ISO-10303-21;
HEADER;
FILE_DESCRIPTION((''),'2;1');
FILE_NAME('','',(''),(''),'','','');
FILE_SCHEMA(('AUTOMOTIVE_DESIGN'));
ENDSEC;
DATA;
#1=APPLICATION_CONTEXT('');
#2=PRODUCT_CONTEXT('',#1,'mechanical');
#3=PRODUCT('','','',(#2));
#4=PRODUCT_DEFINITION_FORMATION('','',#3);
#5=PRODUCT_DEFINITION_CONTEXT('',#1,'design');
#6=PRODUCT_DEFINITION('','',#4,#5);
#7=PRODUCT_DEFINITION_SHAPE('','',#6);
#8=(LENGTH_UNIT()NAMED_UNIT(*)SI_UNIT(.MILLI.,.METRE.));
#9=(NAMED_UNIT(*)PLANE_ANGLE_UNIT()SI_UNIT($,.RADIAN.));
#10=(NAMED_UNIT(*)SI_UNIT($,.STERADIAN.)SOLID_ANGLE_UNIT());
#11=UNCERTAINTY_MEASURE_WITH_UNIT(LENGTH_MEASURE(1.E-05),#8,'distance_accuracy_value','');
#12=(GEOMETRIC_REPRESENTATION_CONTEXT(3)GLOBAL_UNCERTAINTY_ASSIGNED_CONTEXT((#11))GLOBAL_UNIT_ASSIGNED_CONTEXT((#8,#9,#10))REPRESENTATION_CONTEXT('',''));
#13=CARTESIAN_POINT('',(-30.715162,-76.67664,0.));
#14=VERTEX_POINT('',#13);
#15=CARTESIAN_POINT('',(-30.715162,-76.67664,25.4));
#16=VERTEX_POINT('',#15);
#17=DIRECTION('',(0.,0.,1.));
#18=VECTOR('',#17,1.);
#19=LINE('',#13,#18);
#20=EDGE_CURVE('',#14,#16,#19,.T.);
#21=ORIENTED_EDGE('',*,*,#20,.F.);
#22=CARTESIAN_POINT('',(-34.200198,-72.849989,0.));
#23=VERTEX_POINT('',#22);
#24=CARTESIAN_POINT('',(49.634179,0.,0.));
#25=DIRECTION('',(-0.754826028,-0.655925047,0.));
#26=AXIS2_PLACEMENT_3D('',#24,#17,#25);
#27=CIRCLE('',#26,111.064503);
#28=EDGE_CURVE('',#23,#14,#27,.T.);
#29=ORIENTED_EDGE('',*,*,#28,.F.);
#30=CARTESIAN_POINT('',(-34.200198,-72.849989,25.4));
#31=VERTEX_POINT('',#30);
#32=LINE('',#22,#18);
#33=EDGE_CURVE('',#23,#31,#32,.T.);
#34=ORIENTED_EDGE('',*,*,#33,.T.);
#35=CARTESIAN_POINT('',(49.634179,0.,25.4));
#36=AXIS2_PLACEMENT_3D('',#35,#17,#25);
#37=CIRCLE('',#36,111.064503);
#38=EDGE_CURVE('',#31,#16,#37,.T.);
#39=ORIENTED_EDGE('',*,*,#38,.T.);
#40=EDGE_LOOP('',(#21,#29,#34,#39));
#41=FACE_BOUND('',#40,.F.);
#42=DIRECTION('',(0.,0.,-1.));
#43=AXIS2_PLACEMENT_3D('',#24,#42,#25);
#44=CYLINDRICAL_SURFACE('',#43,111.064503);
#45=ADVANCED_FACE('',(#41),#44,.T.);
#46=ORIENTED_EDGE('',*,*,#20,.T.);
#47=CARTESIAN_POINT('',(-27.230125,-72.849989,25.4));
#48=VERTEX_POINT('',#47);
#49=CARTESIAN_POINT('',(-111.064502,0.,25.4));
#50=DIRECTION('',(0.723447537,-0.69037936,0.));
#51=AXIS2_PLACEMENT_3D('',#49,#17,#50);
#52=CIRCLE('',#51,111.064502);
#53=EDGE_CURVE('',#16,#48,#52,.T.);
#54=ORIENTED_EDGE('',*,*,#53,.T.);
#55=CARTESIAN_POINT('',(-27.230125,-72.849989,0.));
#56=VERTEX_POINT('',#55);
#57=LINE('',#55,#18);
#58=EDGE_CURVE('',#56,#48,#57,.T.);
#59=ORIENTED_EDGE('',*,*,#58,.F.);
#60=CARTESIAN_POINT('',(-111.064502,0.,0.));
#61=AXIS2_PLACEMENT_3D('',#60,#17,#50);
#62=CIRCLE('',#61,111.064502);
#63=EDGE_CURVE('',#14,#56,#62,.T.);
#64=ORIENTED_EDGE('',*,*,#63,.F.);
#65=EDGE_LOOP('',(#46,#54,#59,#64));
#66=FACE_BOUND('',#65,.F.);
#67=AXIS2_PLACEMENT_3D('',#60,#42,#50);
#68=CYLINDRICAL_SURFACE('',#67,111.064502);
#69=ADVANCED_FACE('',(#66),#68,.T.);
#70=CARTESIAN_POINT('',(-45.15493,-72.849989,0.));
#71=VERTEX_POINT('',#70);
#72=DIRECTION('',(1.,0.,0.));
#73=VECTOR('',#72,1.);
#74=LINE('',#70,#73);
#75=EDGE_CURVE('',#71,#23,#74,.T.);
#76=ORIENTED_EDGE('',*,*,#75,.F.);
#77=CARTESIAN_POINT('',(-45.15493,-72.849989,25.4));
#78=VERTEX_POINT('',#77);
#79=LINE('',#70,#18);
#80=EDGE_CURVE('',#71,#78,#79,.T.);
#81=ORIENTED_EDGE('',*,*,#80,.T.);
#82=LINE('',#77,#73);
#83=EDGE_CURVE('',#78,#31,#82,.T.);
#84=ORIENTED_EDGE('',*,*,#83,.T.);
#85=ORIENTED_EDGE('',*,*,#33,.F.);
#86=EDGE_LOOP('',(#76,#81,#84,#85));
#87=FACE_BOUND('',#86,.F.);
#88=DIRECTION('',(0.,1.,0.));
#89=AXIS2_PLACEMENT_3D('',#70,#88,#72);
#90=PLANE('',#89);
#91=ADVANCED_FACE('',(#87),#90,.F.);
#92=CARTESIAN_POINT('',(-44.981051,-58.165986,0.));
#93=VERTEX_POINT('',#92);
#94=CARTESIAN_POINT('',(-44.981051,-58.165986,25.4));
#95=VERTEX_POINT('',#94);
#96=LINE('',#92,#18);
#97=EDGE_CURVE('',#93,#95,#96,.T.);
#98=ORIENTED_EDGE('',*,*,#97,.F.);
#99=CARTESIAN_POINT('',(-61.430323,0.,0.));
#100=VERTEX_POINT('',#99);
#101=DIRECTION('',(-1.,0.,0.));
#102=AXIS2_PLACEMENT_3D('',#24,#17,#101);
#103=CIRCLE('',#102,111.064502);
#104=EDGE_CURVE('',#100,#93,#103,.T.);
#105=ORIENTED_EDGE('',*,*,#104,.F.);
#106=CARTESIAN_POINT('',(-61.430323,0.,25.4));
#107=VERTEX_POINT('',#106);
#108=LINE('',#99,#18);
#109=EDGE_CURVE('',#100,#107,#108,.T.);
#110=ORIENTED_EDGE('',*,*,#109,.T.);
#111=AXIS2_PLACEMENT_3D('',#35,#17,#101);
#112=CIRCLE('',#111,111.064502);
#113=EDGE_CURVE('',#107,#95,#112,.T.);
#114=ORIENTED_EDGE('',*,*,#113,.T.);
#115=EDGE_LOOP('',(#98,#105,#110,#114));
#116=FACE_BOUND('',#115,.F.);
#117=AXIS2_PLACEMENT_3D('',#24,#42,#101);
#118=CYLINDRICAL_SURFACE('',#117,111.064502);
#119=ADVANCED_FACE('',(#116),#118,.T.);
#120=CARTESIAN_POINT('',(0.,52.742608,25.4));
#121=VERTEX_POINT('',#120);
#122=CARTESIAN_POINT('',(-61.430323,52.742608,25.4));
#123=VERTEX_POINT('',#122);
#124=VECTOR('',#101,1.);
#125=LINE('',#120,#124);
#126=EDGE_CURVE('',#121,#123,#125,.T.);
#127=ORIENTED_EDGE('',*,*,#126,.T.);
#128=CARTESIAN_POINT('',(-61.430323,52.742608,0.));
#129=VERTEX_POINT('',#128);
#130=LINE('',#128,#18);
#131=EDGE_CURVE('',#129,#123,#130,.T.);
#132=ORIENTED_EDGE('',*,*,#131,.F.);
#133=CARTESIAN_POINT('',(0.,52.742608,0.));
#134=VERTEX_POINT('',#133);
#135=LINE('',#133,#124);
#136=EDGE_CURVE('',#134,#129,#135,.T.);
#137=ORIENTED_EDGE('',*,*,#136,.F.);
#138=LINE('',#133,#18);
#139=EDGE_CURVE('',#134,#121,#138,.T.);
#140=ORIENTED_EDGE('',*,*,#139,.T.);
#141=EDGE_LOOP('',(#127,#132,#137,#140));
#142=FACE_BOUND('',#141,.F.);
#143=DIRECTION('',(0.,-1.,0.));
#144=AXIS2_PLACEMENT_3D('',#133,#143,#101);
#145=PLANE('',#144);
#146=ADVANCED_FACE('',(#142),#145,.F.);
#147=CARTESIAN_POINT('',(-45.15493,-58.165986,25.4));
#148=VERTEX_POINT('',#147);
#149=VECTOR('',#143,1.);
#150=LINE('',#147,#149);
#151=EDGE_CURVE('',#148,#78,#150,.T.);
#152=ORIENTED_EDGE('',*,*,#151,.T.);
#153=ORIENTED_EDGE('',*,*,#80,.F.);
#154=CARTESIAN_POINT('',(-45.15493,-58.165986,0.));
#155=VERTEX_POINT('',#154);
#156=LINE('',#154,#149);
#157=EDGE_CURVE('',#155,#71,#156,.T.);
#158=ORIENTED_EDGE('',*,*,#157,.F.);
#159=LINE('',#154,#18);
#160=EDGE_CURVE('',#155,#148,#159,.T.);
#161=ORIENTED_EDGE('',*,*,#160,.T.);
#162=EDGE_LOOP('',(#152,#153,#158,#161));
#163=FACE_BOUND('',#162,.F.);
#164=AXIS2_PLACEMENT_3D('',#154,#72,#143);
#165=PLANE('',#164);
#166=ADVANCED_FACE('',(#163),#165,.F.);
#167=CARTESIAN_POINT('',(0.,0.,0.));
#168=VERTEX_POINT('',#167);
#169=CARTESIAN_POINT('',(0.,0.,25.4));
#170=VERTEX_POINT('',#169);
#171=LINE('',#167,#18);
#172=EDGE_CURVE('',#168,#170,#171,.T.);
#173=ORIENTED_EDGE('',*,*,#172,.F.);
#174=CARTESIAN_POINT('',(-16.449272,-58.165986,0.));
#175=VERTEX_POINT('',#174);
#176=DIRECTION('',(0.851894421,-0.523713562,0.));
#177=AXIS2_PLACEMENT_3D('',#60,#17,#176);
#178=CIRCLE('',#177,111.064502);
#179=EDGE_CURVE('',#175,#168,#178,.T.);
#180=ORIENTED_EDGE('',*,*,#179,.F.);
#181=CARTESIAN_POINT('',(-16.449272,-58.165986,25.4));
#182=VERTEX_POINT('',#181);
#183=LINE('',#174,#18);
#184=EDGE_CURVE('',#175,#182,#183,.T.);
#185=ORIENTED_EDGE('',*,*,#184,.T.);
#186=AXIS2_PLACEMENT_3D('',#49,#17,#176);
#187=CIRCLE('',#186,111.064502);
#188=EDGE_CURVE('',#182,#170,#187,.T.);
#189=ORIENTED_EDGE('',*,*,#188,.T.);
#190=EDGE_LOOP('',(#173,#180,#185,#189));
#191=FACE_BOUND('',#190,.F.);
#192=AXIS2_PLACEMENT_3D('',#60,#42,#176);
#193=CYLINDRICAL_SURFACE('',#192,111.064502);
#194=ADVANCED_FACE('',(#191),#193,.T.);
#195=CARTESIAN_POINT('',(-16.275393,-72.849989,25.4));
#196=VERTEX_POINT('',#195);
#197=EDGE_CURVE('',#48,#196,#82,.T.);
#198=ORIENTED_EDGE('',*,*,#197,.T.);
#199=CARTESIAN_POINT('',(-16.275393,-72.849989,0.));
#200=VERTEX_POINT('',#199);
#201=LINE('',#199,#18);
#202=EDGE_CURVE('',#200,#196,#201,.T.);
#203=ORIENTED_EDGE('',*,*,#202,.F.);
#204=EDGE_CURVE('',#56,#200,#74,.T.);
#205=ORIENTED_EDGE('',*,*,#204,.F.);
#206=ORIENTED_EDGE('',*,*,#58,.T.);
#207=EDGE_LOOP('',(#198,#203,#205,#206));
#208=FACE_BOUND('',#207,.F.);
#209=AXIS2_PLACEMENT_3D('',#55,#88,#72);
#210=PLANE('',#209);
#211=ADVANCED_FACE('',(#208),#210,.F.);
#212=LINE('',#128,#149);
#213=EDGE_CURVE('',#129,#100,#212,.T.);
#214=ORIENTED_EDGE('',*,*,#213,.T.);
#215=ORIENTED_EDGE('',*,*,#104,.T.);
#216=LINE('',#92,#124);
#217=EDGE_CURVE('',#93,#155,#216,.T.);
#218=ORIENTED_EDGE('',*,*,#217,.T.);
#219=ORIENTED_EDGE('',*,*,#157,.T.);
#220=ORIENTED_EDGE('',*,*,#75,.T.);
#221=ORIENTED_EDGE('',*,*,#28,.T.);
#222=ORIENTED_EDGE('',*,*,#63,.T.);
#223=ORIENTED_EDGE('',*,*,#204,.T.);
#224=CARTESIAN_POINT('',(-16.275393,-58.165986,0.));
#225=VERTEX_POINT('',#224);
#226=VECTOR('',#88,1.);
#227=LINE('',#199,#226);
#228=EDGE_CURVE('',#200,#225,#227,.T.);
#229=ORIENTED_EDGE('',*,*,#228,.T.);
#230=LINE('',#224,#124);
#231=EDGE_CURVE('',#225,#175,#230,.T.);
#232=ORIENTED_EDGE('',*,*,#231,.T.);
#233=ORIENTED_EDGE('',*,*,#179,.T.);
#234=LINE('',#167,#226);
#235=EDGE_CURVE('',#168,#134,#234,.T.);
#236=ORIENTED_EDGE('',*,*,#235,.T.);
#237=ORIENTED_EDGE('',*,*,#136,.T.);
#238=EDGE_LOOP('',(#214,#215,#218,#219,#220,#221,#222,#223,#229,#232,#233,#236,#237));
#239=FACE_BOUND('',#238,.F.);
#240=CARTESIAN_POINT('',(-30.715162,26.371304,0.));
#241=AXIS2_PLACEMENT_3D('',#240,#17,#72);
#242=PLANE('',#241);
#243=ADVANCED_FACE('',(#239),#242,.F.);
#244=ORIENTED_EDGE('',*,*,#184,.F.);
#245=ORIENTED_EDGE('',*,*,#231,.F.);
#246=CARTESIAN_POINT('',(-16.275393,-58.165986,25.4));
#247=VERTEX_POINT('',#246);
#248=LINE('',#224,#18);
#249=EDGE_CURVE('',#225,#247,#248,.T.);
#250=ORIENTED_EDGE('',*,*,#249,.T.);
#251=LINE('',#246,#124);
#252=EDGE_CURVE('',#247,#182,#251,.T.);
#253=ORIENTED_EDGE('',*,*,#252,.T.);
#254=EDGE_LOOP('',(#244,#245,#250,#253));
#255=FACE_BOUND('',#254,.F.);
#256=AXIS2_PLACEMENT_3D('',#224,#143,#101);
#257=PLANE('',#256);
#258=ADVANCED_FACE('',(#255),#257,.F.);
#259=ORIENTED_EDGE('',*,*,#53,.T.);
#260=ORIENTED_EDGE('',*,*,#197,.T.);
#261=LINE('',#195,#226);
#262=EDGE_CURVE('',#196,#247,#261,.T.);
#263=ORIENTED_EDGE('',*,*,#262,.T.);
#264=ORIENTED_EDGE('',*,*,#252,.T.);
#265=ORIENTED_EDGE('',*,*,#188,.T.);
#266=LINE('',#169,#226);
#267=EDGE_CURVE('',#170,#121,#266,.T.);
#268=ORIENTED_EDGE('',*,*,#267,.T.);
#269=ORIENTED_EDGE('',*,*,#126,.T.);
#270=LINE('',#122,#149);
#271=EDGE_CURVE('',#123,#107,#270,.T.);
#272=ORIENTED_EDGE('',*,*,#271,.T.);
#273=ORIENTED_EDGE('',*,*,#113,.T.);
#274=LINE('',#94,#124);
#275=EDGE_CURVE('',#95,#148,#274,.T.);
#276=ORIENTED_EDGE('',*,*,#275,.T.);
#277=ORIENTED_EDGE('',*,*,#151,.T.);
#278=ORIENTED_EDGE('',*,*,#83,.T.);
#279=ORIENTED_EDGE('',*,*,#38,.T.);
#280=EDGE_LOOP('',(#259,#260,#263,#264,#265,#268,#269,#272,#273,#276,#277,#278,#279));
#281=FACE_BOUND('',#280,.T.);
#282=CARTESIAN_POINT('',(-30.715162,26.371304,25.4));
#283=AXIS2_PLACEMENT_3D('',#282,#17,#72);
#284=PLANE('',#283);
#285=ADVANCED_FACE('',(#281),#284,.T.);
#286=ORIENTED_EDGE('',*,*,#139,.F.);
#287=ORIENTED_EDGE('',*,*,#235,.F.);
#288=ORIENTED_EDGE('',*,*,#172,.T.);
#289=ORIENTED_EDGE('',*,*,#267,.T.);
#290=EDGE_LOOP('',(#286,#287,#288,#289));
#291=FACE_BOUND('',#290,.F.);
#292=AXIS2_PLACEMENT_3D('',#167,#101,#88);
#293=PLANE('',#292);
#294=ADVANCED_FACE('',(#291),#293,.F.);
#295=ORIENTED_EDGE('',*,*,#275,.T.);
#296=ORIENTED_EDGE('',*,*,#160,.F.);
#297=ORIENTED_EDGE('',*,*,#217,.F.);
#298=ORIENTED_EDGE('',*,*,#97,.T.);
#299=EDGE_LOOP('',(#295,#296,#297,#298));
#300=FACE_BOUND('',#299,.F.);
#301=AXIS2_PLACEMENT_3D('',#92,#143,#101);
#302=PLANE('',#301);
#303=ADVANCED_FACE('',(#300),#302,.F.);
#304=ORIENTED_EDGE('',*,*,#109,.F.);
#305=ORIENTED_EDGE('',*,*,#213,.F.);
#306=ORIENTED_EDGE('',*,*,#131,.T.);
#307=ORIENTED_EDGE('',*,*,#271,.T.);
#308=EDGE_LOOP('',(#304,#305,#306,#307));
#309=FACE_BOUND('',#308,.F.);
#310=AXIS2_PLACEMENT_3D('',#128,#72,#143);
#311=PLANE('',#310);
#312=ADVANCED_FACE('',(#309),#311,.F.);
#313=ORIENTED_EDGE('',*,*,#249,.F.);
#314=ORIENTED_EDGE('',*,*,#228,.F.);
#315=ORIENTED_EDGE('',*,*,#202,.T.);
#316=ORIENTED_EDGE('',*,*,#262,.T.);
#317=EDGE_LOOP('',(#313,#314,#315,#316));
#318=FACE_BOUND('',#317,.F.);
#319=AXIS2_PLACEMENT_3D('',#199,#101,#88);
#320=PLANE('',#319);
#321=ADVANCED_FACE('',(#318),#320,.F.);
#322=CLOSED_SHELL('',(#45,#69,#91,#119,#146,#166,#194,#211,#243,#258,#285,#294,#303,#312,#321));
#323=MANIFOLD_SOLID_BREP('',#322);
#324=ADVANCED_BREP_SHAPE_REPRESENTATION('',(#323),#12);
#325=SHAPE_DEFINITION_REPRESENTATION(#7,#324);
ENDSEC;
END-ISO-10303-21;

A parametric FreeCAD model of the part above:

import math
import FreeCAD as App
import Part
import Sketcher
from FreeCAD import Vector
Q = App.Units.Quantity

doc = App.newDocument("Part")
body = doc.addObject("PartDesign::Body", "Body")

# Sketch on XY plane
sketch1 = doc.addObject("Sketcher::SketchObject", "Sketch")
body.addObject(sketch1)
sketch1.AttachmentSupport = (doc.XY_Plane, [""])
sketch1.MapMode = "FlatFace"
sketch1.addGeometry(Part.LineSegment(Vector(0, 52.742608, 0), Vector(-61.430323, 52.742608, 0)), False)
sketch1.addGeometry(Part.LineSegment(Vector(-61.430323, 52.742608, 0), Vector(-61.430323, 0, 0)), False)
sketch1.addGeometry(Part.ArcOfCircle(Part.Circle(Vector(49.634179, 0, 0), Vector(0, 0, 1), 111.064502), math.radians(180), math.radians(211.581681)), False)
sketch1.addGeometry(Part.LineSegment(Vector(-44.981051, -58.165986, 0), Vector(-45.15493, -58.165986, 0)), False)
sketch1.addGeometry(Part.LineSegment(Vector(-45.15493, -58.165986, 0), Vector(-45.15493, -72.849989, 0)), False)
sketch1.addGeometry(Part.LineSegment(Vector(-45.15493, -72.849989, 0), Vector(-34.200198, -72.849989, 0)), False)
sketch1.addGeometry(Part.ArcOfCircle(Part.Circle(Vector(49.634179, 0, 0), Vector(0, 0, 1), 111.064503), math.radians(-139.010171), math.radians(-136.339854)), False)
sketch1.addGeometry(Part.ArcOfCircle(Part.Circle(Vector(-111.064502, 0, 0), Vector(0, 0, 1), 111.064502), math.radians(-43.660146), math.radians(-40.989829)), False)
sketch1.addGeometry(Part.LineSegment(Vector(-27.230125, -72.849989, 0), Vector(-16.275393, -72.849989, 0)), False)
sketch1.addGeometry(Part.LineSegment(Vector(-16.275393, -72.849989, 0), Vector(-16.275393, -58.165986, 0)), False)
sketch1.addGeometry(Part.LineSegment(Vector(-16.275393, -58.165986, 0), Vector(-16.449272, -58.165986, 0)), False)
sketch1.addGeometry(Part.ArcOfCircle(Part.Circle(Vector(-111.064502, 0, 0), Vector(0, 0, 1), 111.064502), math.radians(-31.581681), math.radians(0)), False)
sketch1.addGeometry(Part.LineSegment(Vector(0, 0, 0), Vector(0, 52.742608, 0)), False)
sketch1.addConstraint(Sketcher.Constraint("Coincident", 0, 2, 1, 1))
sketch1.addConstraint(Sketcher.Constraint("Tangent", 1, 2, 2, 1))
sketch1.addConstraint(Sketcher.Constraint("Coincident", 2, 2, 3, 1))
sketch1.addConstraint(Sketcher.Constraint("Coincident", 3, 2, 4, 1))
sketch1.addConstraint(Sketcher.Constraint("Coincident", 4, 2, 5, 1))
sketch1.addConstraint(Sketcher.Constraint("Coincident", 5, 2, 6, 1))
sketch1.addConstraint(Sketcher.Constraint("Coincident", 6, 2, 7, 1))
sketch1.addConstraint(Sketcher.Constraint("Coincident", 7, 2, 8, 1))
sketch1.addConstraint(Sketcher.Constraint("Coincident", 8, 2, 9, 1))
sketch1.addConstraint(Sketcher.Constraint("Coincident", 9, 2, 10, 1))
sketch1.addConstraint(Sketcher.Constraint("Coincident", 10, 2, 11, 1))
sketch1.addConstraint(Sketcher.Constraint("Tangent", 11, 2, 12, 1))
sketch1.addConstraint(Sketcher.Constraint("Coincident", 12, 2, 0, 1))
sketch1.addConstraint(Sketcher.Constraint("Horizontal", 0))
sketch1.addConstraint(Sketcher.Constraint("Vertical", 1))
sketch1.addConstraint(Sketcher.Constraint("Horizontal", 3))
sketch1.addConstraint(Sketcher.Constraint("Vertical", 4))
sketch1.addConstraint(Sketcher.Constraint("Horizontal", 5))
sketch1.addConstraint(Sketcher.Constraint("Horizontal", 8))
sketch1.addConstraint(Sketcher.Constraint("Vertical", 9))
sketch1.addConstraint(Sketcher.Constraint("Horizontal", 10))
sketch1.addConstraint(Sketcher.Constraint("Vertical", 12))
sketch1.addConstraint(Sketcher.Constraint("Coincident", 11, 2, -1, 1))
sketch1.addConstraint(Sketcher.Constraint("Coincident", 6, 3, 2, 3))
sketch1.addConstraint(Sketcher.Constraint("Coincident", 11, 3, 7, 3))
sketch1.addConstraint(Sketcher.Constraint("Equal", 2, 6))
sketch1.addConstraint(Sketcher.Constraint("Equal", 6, 7))
sketch1.addConstraint(Sketcher.Constraint("Equal", 7, 11))
sketch1.addConstraint(Sketcher.Constraint("PointOnObject", 2, 3, -1))
sketch1.addConstraint(Sketcher.Constraint("Horizontal", 5, 2, 7, 2))
sketch1.addConstraint(Sketcher.Constraint("Horizontal", 3, 2, 9, 2))
sketch1.addConstraint(Sketcher.Constraint("Equal", 5, 8))
sketch1.addConstraint(Sketcher.Constraint("Radius", 2, 111.064502))
sketch1.addConstraint(Sketcher.Constraint("DistanceX", 3, 2, 3, 1, 0.17388))
sketch1.addConstraint(Sketcher.Constraint("DistanceX", 5, 2, -1, 1, 34.200198))
sketch1.addConstraint(Sketcher.Constraint("DistanceX", 0, 2, 0, 1, 61.430323))
sketch1.addConstraint(Sketcher.Constraint("DistanceX", 5, 1, 5, 2, 10.954732))
sketch1.addConstraint(Sketcher.Constraint("DistanceY", 1, 2, 1, 1, 52.742608))
pad1 = doc.addObject("PartDesign::Pad", "Pad")
body.addObject(pad1)
pad1.Profile = sketch1
pad1.Length = Q("1 in")

doc.recompute()
